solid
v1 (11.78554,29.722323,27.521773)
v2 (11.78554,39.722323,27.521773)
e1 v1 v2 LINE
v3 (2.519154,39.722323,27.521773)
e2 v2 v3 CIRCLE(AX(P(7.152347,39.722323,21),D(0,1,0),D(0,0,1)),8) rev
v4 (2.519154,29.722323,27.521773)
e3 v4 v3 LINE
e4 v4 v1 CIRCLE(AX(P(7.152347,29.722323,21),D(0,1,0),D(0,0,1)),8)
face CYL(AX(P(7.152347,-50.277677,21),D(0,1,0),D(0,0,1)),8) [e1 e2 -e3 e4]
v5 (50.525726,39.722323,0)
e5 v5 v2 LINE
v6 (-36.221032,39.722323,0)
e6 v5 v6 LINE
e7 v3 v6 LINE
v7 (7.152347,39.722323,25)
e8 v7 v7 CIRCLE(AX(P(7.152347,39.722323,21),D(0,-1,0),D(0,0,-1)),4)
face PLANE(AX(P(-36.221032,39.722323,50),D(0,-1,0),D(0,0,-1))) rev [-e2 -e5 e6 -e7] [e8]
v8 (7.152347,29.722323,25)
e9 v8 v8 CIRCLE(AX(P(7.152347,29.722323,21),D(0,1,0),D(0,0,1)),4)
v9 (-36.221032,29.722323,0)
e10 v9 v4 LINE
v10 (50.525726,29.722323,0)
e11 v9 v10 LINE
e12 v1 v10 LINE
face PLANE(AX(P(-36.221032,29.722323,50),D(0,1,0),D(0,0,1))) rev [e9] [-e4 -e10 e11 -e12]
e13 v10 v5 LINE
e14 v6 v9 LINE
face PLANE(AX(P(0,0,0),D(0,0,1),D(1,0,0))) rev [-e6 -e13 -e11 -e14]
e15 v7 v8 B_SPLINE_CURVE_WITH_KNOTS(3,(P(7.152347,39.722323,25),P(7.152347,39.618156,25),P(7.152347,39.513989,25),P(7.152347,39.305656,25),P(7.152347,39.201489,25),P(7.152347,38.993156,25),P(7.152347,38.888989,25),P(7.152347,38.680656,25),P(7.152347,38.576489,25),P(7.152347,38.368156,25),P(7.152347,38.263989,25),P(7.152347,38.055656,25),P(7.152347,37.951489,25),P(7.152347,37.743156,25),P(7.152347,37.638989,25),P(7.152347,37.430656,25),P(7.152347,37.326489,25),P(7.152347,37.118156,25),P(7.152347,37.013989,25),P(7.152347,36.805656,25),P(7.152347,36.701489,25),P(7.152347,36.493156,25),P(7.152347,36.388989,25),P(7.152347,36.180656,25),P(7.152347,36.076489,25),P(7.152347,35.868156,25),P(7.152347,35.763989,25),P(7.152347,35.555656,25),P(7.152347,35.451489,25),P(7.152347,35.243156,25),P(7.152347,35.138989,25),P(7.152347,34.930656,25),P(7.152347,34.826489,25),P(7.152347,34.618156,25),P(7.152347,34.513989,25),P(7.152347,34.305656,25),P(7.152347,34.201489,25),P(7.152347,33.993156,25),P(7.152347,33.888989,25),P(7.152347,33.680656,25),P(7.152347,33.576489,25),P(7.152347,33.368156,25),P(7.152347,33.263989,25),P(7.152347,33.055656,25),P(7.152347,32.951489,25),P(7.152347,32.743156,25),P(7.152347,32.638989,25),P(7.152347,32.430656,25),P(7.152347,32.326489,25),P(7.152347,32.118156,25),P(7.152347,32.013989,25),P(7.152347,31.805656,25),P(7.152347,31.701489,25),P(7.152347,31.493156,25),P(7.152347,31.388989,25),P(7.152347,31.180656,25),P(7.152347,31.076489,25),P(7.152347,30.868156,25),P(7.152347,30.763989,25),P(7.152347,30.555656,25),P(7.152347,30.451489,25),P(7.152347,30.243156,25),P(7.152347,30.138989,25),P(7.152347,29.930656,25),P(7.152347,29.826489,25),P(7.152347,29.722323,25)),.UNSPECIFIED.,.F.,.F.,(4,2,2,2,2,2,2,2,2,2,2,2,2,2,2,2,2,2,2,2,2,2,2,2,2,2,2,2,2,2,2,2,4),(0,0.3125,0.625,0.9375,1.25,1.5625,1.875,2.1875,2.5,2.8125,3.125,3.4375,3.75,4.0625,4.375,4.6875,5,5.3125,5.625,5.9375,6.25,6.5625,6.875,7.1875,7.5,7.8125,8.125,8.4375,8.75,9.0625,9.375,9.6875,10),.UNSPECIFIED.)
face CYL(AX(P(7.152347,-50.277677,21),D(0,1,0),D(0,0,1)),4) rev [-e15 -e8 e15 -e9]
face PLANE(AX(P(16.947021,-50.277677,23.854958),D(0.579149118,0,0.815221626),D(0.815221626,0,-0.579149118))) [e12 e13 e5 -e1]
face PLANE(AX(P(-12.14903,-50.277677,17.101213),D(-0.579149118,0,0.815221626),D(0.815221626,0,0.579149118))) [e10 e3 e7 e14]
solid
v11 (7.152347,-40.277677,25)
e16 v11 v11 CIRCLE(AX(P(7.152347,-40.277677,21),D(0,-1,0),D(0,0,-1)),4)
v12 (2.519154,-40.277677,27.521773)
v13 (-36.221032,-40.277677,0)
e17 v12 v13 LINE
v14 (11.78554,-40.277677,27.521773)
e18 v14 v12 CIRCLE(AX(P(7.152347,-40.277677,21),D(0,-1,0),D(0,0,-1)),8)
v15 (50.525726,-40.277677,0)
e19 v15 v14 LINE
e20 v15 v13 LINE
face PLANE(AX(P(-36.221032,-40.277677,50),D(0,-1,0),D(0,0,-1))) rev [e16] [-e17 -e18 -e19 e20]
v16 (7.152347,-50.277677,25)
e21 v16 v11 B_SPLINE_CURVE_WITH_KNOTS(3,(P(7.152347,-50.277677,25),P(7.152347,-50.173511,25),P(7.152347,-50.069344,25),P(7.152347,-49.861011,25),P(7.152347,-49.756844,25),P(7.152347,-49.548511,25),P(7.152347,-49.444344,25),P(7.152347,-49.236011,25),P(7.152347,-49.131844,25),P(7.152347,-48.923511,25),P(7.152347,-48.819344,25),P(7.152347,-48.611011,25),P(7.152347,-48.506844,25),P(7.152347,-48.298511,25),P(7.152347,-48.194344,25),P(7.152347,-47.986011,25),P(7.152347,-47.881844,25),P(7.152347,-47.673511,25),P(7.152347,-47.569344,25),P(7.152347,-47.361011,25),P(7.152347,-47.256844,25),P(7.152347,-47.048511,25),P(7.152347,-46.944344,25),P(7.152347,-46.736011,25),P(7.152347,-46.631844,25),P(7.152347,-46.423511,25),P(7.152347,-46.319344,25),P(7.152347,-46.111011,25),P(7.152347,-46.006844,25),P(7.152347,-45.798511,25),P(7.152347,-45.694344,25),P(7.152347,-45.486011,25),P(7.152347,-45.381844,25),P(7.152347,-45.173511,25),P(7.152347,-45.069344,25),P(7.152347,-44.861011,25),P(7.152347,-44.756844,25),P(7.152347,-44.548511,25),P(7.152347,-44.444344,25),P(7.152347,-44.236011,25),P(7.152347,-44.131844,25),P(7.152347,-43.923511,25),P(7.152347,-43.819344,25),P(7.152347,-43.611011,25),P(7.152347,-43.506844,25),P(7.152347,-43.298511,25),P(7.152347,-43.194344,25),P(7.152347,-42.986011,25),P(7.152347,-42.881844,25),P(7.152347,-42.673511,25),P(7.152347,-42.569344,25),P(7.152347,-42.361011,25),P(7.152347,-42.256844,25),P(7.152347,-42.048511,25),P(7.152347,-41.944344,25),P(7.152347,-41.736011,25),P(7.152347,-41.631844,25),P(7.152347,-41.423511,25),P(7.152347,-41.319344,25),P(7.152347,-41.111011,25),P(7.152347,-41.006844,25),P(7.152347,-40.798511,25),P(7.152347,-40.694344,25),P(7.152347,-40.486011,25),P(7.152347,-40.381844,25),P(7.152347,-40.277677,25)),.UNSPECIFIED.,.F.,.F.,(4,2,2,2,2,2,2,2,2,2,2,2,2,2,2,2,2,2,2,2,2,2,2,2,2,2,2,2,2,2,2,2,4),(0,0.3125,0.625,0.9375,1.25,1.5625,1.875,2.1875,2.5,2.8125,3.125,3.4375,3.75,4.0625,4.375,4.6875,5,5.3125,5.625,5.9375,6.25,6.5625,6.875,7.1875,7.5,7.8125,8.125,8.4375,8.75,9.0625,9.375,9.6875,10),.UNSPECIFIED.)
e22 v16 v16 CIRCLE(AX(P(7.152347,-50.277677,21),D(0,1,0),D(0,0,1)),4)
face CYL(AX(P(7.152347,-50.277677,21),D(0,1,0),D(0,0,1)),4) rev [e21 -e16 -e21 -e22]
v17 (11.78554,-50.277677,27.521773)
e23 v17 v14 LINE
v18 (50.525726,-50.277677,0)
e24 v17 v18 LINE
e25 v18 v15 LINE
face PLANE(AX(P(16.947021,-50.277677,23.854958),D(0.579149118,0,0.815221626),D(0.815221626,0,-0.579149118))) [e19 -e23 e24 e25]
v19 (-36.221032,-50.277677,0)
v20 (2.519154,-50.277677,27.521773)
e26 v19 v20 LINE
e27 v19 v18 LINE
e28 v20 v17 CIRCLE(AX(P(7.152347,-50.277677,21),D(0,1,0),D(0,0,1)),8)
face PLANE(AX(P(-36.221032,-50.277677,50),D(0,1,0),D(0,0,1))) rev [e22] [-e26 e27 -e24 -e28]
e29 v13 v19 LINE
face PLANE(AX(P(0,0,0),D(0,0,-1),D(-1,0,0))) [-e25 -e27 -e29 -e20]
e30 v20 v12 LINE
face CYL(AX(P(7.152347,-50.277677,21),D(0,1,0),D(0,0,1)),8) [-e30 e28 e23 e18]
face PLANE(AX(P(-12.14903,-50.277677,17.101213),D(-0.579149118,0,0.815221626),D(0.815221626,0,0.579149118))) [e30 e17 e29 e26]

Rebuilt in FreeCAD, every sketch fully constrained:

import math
import FreeCAD as App
import Part
import Sketcher
from FreeCAD import Vector

doc = App.newDocument("Part")
body = doc.addObject("PartDesign::Body", "Body")

# Sketch on XY plane
sketch1 = body.newObject("Sketcher::SketchObject", "Sketch")
sketch1.AttachmentSupport = (doc.getObject("XY_Plane"), [""])
sketch1.MapMode = "FlatFace"
sketch1.addGeometry(Part.LineSegment(Vector(-36, 40, 0), Vector(-36, 30, 0)), False)
sketch1.addGeometry(Part.LineSegment(Vector(-36, 30, 0), Vector(51, 30, 0)), False)
sketch1.addGeometry(Part.LineSegment(Vector(51, 30, 0), Vector(51, 40, 0)), False)
sketch1.addGeometry(Part.LineSegment(Vector(51, 40, 0), Vector(-36, 40, 0)), False)
sketch1.addConstraint(Sketcher.Constraint("Coincident", 0, 2, 1, 1))
sketch1.addConstraint(Sketcher.Constraint("Coincident", 1, 2, 2, 1))
sketch1.addConstraint(Sketcher.Constraint("Coincident", 2, 2, 3, 1))
sketch1.addConstraint(Sketcher.Constraint("Coincident", 3, 2, 0, 1))
sketch1.addConstraint(Sketcher.Constraint("Vertical", 0))
sketch1.addConstraint(Sketcher.Constraint("Horizontal", 1))
sketch1.addConstraint(Sketcher.Constraint("Vertical", 2))
sketch1.addConstraint(Sketcher.Constraint("Horizontal", 3))
sketch1.addConstraint(Sketcher.Constraint("DistanceY", 0, 2, 0, 1, 10.0))
sketch1.addConstraint(Sketcher.Constraint("DistanceX", 1, 1, 1, 2, 86.746758))
sketch1.addConstraint(Sketcher.Constraint("DistanceX", 0, 2, -1, 1, 36.221032))
sketch1.addConstraint(Sketcher.Constraint("DistanceY", -1, 1, 0, 2, 29.722323))
pad1 = body.newObject("PartDesign::Pad", "Pad")
pad1.Profile = sketch1
pad1.Length = 50
body2 = doc.addObject("PartDesign::Body", "Body001")

# Sketch on XY plane
sketch2 = body2.newObject("Sketcher::SketchObject", "Sketch001")
sketch2.AttachmentSupport = (doc.getObject("XY_Plane001"), [""])
sketch2.MapMode = "FlatFace"
sketch2.addGeometry(Part.LineSegment(Vector(-36, -40, 0), Vector(-36, -50, 0)), False)
sketch2.addGeometry(Part.LineSegment(Vector(-36, -50, 0), Vector(51, -50, 0)), False)
sketch2.addGeometry(Part.LineSegment(Vector(51, -50, 0), Vector(51, -40, 0)), False)
sketch2.addGeometry(Part.LineSegment(Vector(51, -40, 0), Vector(-36, -40, 0)), False)
sketch2.addConstraint(Sketcher.Constraint("Coincident", 0, 2, 1, 1))
sketch2.addConstraint(Sketcher.Constraint("Coincident", 1, 2, 2, 1))
sketch2.addConstraint(Sketcher.Constraint("Coincident", 2, 2, 3, 1))
sketch2.addConstraint(Sketcher.Constraint("Coincident", 3, 2, 0, 1))
sketch2.addConstraint(Sketcher.Constraint("Vertical", 0))
sketch2.addConstraint(Sketcher.Constraint("Horizontal", 1))
sketch2.addConstraint(Sketcher.Constraint("Vertical", 2))
sketch2.addConstraint(Sketcher.Constraint("Horizontal", 3))
sketch2.addConstraint(Sketcher.Constraint("DistanceY", 0, 2, 0, 1, 10.0))
sketch2.addConstraint(Sketcher.Constraint("DistanceX", 1, 1, 1, 2, 86.746758))
sketch2.addConstraint(Sketcher.Constraint("DistanceX", 0, 2, -1, 1, 36.221032))
sketch2.addConstraint(Sketcher.Constraint("DistanceY", 0, 2, -1, 1, 50.277677))
pad2 = body2.newObject("PartDesign::Pad", "Pad001")
pad2.Profile = sketch2
pad2.Length = 50
body3 = doc.addObject("PartDesign::Body", "Body002")
body3.AllowCompound = True

# Sketch on XZ plane
sketch3 = body3.newObject("Sketcher::SketchObject", "Sketch002")
sketch3.AttachmentSupport = (doc.getObject("XZ_Plane002"), [""])
sketch3.MapMode = "FlatFace"
sketch3.AttachmentOffset = App.Placement(Vector(0, 0, -39.722323), App.Rotation())
sketch3.addGeometry(Part.LineSegment(Vector(50.5, 50, 0), Vector(50.5, 0, 0)), False)
sketch3.addGeometry(Part.LineSegment(Vector(50.5, 0, 0), Vector(11.8, 27.5, 0)), False)
sketch3.addGeometry(Part.ArcOfCircle(Part.Circle(Vector(7.2, 21, 0), Vector(0, 0, 1), 8), math.radians(55), math.radians(125)), False)
sketch3.addGeometry(Part.LineSegment(Vector(2.5, 27.5, 0), Vector(-36.2, 0, 0)), False)
sketch3.addGeometry(Part.LineSegment(Vector(-36.2, 0, 0), Vector(-36.2, 50, 0)), False)
sketch3.addGeometry(Part.LineSegment(Vector(-36.2, 50, 0), Vector(50.5, 50, 0)), False)
sketch3.addGeometry(Part.Circle(Vector(7.2, 21, 0), Vector(0, 0, 1), 4), False)
sketch3.addConstraint(Sketcher.Constraint("Coincident", 0, 2, 1, 1))
sketch3.addConstraint(Sketcher.Constraint("Tangent", 1, 2, 2, 1))
sketch3.addConstraint(Sketcher.Constraint("Tangent", 2, 2, 3, 1))
sketch3.addConstraint(Sketcher.Constraint("Coincident", 3, 2, 4, 1))
sketch3.addConstraint(Sketcher.Constraint("Coincident", 4, 2, 5, 1))
sketch3.addConstraint(Sketcher.Constraint("Coincident", 5, 2, 0, 1))
sketch3.addConstraint(Sketcher.Constraint("Vertical", 0))
sketch3.addConstraint(Sketcher.Constraint("Vertical", 4))
sketch3.addConstraint(Sketcher.Constraint("Horizontal", 5))
sketch3.addConstraint(Sketcher.Constraint("Coincident", 6, 3, 2, 3))
sketch3.addConstraint(Sketcher.Constraint("PointOnObject", 0, 2, -1))
sketch3.addConstraint(Sketcher.Constraint("PointOnObject", 3, 2, -1))
sketch3.addConstraint(Sketcher.Constraint("Horizontal", 1, 2, 2, 2))
sketch3.addConstraint(Sketcher.Constraint("Diameter", 6, 8.0))
sketch3.addConstraint(Sketcher.Constraint("Radius", 2, 8.0))
sketch3.addConstraint(Sketcher.Constraint("DistanceY", 0, 2, 0, 1, 50.0))
sketch3.addConstraint(Sketcher.Constraint("DistanceY", -1, 1, 2, 3, 21.0))
sketch3.addConstraint(Sketcher.Constraint("DistanceX", 5, 1, 5, 2, 86.746758))
sketch3.addConstraint(Sketcher.Constraint("DistanceX", -1, 1, 1, 2, 11.78554))
pad3 = body3.newObject("PartDesign::Pad", "Pad002")
pad3.Profile = sketch3
pad3.Type = "TwoLengths"
pad3.Length = 115.685871
pad3.Length2 = 115.685871
pad3.Reversed = True
doc.recompute()

body4 = doc.addObject("PartDesign::Body", "Body003")
body4.BaseFeature = body3
boolean = body.newObject("PartDesign::Boolean", "Boolean")
boolean.Type = "Cut"
boolean.addObjects([body4])
doc.recompute()

boolean2 = body2.newObject("PartDesign::Boolean", "Boolean001")
boolean2.Type = "Cut"
boolean2.addObjects([body3])

doc.recompute()
